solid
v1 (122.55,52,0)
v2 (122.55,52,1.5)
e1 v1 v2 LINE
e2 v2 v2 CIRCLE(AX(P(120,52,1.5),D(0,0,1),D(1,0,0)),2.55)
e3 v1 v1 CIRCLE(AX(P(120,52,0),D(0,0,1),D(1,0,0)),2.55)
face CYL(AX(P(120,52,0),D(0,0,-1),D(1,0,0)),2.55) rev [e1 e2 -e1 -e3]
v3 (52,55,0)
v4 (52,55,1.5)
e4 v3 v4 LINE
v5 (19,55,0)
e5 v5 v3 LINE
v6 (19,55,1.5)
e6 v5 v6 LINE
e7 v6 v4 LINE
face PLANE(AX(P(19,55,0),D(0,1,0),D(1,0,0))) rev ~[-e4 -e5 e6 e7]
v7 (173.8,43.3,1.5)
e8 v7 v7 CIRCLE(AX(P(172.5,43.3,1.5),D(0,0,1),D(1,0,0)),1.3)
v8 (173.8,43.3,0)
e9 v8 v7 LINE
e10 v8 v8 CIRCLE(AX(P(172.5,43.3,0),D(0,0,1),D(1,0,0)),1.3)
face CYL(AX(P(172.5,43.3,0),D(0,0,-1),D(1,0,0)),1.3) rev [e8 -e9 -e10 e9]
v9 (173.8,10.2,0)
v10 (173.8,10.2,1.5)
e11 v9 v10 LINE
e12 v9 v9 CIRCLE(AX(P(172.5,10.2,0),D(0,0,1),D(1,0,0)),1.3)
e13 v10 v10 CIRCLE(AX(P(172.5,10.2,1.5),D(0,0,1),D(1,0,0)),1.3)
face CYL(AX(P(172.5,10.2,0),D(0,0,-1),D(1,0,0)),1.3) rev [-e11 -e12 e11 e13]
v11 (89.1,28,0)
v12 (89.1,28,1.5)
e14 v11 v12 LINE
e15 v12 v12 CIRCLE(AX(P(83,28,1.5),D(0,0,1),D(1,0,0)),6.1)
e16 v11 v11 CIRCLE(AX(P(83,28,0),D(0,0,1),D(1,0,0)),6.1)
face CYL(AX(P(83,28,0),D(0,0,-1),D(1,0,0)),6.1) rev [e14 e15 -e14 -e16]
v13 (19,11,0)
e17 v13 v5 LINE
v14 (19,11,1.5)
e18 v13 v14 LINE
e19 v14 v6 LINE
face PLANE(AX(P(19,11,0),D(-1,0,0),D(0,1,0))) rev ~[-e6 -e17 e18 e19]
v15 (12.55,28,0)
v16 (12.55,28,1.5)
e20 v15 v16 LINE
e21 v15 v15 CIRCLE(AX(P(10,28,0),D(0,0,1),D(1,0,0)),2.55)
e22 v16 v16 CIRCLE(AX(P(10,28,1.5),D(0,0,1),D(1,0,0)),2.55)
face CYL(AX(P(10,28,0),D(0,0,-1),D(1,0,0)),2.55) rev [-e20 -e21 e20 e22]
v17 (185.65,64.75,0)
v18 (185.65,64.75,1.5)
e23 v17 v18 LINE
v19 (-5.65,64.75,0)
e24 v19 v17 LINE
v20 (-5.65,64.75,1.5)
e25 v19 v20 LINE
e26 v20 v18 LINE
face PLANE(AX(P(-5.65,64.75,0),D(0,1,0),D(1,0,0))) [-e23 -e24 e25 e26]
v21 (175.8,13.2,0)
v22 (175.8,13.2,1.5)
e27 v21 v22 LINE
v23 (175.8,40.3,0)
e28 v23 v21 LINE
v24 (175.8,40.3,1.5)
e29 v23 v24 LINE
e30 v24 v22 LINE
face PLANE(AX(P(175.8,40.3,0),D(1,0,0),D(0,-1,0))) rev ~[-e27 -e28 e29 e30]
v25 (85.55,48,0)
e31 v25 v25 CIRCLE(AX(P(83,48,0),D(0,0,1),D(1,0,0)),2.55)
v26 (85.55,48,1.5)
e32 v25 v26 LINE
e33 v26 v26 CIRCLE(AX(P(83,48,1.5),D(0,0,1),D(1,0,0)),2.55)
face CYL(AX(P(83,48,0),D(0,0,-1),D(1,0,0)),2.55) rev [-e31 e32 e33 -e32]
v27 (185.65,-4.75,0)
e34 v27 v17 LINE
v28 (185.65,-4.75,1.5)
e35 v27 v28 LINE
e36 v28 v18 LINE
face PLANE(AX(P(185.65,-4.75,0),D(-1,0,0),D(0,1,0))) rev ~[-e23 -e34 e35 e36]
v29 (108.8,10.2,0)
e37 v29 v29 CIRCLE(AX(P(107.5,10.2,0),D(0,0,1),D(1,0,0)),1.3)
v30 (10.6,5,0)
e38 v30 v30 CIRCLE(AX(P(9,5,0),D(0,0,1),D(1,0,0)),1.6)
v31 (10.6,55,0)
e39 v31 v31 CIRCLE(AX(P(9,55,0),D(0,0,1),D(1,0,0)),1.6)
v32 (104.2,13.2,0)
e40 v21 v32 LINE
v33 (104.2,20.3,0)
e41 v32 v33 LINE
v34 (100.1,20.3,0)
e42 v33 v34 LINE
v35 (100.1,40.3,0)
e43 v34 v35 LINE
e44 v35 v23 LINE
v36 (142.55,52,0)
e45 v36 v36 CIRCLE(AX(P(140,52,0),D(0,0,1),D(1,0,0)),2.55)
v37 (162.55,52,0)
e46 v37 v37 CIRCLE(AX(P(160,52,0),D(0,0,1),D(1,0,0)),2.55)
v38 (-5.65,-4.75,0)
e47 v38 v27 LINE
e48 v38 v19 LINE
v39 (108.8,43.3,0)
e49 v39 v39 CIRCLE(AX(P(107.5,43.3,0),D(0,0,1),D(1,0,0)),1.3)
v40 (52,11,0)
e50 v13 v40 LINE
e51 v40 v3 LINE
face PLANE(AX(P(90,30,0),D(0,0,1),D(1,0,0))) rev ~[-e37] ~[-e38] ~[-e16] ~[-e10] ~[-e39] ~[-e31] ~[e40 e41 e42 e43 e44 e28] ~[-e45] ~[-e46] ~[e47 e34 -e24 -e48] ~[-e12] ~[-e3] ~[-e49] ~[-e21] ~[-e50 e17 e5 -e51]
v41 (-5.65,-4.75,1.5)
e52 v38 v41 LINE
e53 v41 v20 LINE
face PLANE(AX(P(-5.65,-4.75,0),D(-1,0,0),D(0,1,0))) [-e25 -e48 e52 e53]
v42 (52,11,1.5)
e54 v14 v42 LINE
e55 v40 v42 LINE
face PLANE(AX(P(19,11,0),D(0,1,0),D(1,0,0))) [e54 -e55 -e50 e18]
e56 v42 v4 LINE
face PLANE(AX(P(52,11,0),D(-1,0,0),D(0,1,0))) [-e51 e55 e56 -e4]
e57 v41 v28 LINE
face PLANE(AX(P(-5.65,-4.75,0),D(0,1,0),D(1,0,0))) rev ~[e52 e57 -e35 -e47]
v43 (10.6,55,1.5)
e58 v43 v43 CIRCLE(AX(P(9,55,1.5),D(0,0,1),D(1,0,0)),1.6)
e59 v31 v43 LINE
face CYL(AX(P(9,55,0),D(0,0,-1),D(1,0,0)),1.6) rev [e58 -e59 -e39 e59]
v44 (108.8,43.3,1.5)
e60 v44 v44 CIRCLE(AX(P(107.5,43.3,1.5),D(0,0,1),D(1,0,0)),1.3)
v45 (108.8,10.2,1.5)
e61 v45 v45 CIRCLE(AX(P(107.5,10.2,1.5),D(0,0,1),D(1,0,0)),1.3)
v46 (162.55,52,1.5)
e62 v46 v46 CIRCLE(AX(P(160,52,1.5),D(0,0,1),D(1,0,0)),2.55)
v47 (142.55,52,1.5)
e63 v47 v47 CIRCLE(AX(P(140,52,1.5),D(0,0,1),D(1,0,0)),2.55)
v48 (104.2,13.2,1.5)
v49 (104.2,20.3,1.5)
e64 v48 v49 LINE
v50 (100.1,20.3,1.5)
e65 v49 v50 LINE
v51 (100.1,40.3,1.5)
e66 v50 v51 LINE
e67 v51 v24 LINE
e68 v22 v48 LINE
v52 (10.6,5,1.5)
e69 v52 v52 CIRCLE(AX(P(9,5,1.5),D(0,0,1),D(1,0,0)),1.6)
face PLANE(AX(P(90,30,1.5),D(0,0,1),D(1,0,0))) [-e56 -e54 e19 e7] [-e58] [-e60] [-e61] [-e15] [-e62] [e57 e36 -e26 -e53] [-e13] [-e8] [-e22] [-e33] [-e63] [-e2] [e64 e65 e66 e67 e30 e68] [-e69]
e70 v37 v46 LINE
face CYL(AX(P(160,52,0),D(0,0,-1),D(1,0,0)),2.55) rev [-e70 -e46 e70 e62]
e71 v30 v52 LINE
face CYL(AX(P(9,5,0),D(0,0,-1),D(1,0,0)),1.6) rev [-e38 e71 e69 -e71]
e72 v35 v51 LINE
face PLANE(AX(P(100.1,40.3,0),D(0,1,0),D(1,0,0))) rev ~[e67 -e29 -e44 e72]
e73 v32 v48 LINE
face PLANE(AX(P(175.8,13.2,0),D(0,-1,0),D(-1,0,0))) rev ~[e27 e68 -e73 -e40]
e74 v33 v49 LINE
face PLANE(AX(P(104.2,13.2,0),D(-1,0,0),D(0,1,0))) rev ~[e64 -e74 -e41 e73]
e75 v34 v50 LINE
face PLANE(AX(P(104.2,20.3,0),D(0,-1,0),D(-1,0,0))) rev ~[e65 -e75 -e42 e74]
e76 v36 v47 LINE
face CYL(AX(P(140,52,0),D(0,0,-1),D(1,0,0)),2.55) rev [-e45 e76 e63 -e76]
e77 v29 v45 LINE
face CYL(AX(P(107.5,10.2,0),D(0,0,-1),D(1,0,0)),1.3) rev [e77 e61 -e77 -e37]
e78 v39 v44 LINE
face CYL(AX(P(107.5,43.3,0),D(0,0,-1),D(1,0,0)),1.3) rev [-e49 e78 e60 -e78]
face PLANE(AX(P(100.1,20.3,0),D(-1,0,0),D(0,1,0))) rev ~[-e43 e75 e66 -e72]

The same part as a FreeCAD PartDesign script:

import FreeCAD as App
import Part
import Sketcher
from FreeCAD import Vector


def add_polygon(sketch, points):
    """Adds a closed chain of lines whose ends are joined by coincident constraints."""
    first, n = sketch.GeometryCount, len(points)
    for a, b in zip(points, points[1:] + points[:1]):
        sketch.addGeometry(Part.LineSegment(App.Vector(*a, 0), App.Vector(*b, 0)), False)
    for i in range(n):
        sketch.addConstraint(Sketcher.Constraint("Coincident", first + i, 2, first + (i + 1) % n, 1))

doc = App.newDocument("Part")
body = doc.addObject("PartDesign::Body", "Body")

# Sketch on XY plane
sketch1 = body.newObject("Sketcher::SketchObject", "Sketch")
sketch1.AttachmentSupport = (doc.getObject("XY_Plane"), [""])
sketch1.MapMode = "FlatFace"
add_polygon(sketch1, [(-5.65, 64.75), (-5.65, -4.75), (185.65, -4.75), (185.65, 64.75)])  # lines 0-3
sketch1.addGeometry(Part.Circle(Vector(9, 5, 0), Vector(0, 0, 1), 1.6), False)  # 4
sketch1.addGeometry(Part.Circle(Vector(10, 28, 0), Vector(0, 0, 1), 2.55), False)  # 5
sketch1.addGeometry(Part.Circle(Vector(83, 28, 0), Vector(0, 0, 1), 6.1), False)  # 6
sketch1.addGeometry(Part.Circle(Vector(107.5, 10.2, 0), Vector(0, 0, 1), 1.3), False)  # 7
sketch1.addGeometry(Part.Circle(Vector(172.5, 10.2, 0), Vector(0, 0, 1), 1.3), False)  # 8
add_polygon(sketch1, [(175.8, 40.3), (175.8, 13.2), (104.2, 13.2), (104.2, 20.3), (100.1, 20.3), (100.1, 40.3)])  # lines 9-14
add_polygon(sketch1, [(52, 11), (19, 11), (19, 55), (52, 55)])  # lines 15-18
sketch1.addGeometry(Part.Circle(Vector(9, 55, 0), Vector(0, 0, 1), 1.6), False)  # 19
sketch1.addGeometry(Part.Circle(Vector(83, 48, 0), Vector(0, 0, 1), 2.55), False)  # 20
sketch1.addGeometry(Part.Circle(Vector(107.5, 43.3, 0), Vector(0, 0, 1), 1.3), False)  # 21
sketch1.addGeometry(Part.Circle(Vector(172.5, 43.3, 0), Vector(0, 0, 1), 1.3), False)  # 22
sketch1.addGeometry(Part.Circle(Vector(120, 52, 0), Vector(0, 0, 1), 2.55), False)  # 23
sketch1.addGeometry(Part.Circle(Vector(140, 52, 0), Vector(0, 0, 1), 2.55), False)  # 24
sketch1.addGeometry(Part.Circle(Vector(160, 52, 0), Vector(0, 0, 1), 2.55), False)  # 25
sketch1.addConstraint([
    Sketcher.Constraint("Vertical", 0),
    Sketcher.Constraint("Horizontal", 1),
    Sketcher.Constraint("Vertical", 2),
    Sketcher.Constraint("Horizontal", 3),
    Sketcher.Constraint("Vertical", 9),
    Sketcher.Constraint("Horizontal", 10),
    Sketcher.Constraint("Vertical", 11),
    Sketcher.Constraint("Horizontal", 12),
    Sketcher.Constraint("Vertical", 13),
    Sketcher.Constraint("Horizontal", 14),
    Sketcher.Constraint("Horizontal", 15),
    Sketcher.Constraint("Vertical", 16),
    Sketcher.Constraint("Horizontal", 17),
    Sketcher.Constraint("Vertical", 18),
    Sketcher.Constraint("Equal", 7, 8),
    Sketcher.Constraint("Equal", 4, 19),
    Sketcher.Constraint("Equal", 5, 20),
    Sketcher.Constraint("Equal", 8, 21),
    Sketcher.Constraint("Equal", 21, 22),
    Sketcher.Constraint("Equal", 20, 23),
    Sketcher.Constraint("Equal", 23, 24),
    Sketcher.Constraint("Equal", 24, 25),
    Sketcher.Constraint("Horizontal", 5, 3, 6, 3),
    Sketcher.Constraint("Horizontal", 7, 3, 8, 3),
    Sketcher.Constraint("Horizontal", 21, 3, 22, 3),
    Sketcher.Constraint("Horizontal", 23, 3, 24, 3),
    Sketcher.Constraint("Horizontal", 24, 3, 25, 3),
    Sketcher.Constraint("Horizontal", 19, 3, 16, 2),
    Sketcher.Constraint("Vertical", 4, 3, 19, 3),
    Sketcher.Constraint("Vertical", 6, 3, 20, 3),
    Sketcher.Constraint("Vertical", 7, 3, 21, 3),
    Sketcher.Constraint("Vertical", 8, 3, 22, 3),
    Sketcher.Constraint("Diameter", 4, 3.2),
    Sketcher.Constraint("Diameter", 5, 5.1),
    Sketcher.Constraint("Diameter", 6, 12.2),
    Sketcher.Constraint("Diameter", 7, 2.6),
    Sketcher.Constraint("DistanceX", 15, 2, 15, 1, 33.0),
    Sketcher.Constraint("DistanceY", 13, 1, 13, 2, 20.0),
    Sketcher.Constraint("DistanceY", 16, 1, 16, 2, 44.0),
    Sketcher.Constraint("DistanceX", 1, 1, 1, 2, 191.3),
    Sketcher.Constraint("DistanceX", 10, 2, 10, 1, 71.6),
    Sketcher.Constraint("DistanceX", 12, 2, 12, 1, 4.1),
    Sketcher.Constraint("DistanceY", 0, 2, 0, 1, 69.5),
    Sketcher.Constraint("DistanceY", 9, 2, 9, 1, 27.1),
    Sketcher.Constraint("DistanceX", -1, 1, 4, 3, 9.0),
    Sketcher.Constraint("DistanceY", -1, 1, 4, 3, 5.0),
    Sketcher.Constraint("DistanceX", -1, 1, 5, 3, 10.0),
    Sketcher.Constraint("DistanceY", -1, 1, 5, 3, 28.0),
    Sketcher.Constraint("DistanceX", -1, 1, 6, 3, 83.0),
    Sketcher.Constraint("DistanceY", -1, 1, 19, 3, 55.0),
    Sketcher.Constraint("DistanceY", -1, 1, 20, 3, 48.0),
    Sketcher.Constraint("DistanceX", -1, 1, 23, 3, 120.0),
    Sketcher.Constraint("DistanceY", -1, 1, 23, 3, 52.0),
    Sketcher.Constraint("DistanceX", -1, 1, 24, 3, 140.0),
    Sketcher.Constraint("DistanceX", -1, 1, 25, 3, 160.0),
    Sketcher.Constraint("DistanceX", -1, 1, 15, 2, 19.0),
    Sketcher.Constraint("DistanceX", 7, 3, 8, 3, 65.0),
    Sketcher.Constraint("DistanceY", 8, 3, 9, 2, 3.0),
    Sketcher.Constraint("DistanceY", 11, 2, 21, 3, 23.0),
    Sketcher.Constraint("DistanceX", -1, 1, 7, 3, 107.5),
    Sketcher.Constraint("DistanceY", -1, 1, 7, 3, 10.2),
    Sketcher.Constraint("DistanceX", -1, 1, 9, 2, 175.8),
    Sketcher.Constraint("DistanceX", 0, 2, -1, 1, 5.65),
    Sketcher.Constraint("DistanceY", 0, 2, -1, 1, 4.75),
])
pad1 = body.newObject("PartDesign::Pad", "Pad")
pad1.Profile = sketch1
pad1.Length = 1.5

doc.recompute()
